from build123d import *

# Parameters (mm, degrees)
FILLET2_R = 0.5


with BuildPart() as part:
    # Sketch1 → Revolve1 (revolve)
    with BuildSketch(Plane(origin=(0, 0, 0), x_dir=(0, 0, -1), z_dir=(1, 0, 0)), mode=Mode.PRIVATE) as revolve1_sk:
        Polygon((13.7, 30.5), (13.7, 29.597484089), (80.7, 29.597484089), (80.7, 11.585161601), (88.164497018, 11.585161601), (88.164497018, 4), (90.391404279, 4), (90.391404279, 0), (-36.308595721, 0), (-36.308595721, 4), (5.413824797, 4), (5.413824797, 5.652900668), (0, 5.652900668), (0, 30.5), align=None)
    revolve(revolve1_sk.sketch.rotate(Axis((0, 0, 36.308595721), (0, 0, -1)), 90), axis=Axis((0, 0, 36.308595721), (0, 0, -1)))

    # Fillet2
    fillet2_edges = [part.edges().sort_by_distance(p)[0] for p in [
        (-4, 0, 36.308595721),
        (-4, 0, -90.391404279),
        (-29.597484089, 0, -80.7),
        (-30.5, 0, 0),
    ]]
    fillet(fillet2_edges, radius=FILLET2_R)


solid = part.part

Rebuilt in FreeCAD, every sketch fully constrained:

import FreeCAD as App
import Part
import Sketcher

V = App.Vector
Q = App.Units.Quantity


def edges_at(feature, points):
    """Names of the edges that pass closest to the given points."""
    edges = feature.Shape.Edges
    near = lambda p: min(range(len(edges)), key=lambda i: edges[i].distToShape(Part.Vertex(*p))[0])
    return sorted({f"Edge{near(p) + 1}" for p in points})

doc = App.newDocument("Part")
body = doc.addObject("PartDesign::Body", "Body")

# Sketch on YZ plane
sketch1 = doc.addObject("Sketcher::SketchObject", "Sketch")
body.addObject(sketch1)
sketch1.AttachmentSupport = (doc.YZ_Plane, [""])
sketch1.MapMode = "FlatFace"
sketch1.addGeometry([
    Part.LineSegment(V(29.6, -13.7, 0), V(30.5, -13.7, 0)),  # 0
    Part.LineSegment(V(30.5, -13.7, 0), V(30.5, 0, 0)),  # 1
    Part.LineSegment(V(30.5, 0, 0), V(5.7, 0, 0)),  # 2
    Part.LineSegment(V(5.7, 0, 0), V(5.7, -5.4, 0)),  # 3
    Part.LineSegment(V(5.7, -5.4, 0), V(4, -5.4, 0)),  # 4
    Part.LineSegment(V(4, -5.4, 0), V(4, 36.3, 0)),  # 5
    Part.LineSegment(V(4, 36.3, 0), V(0, 36.3, 0)),  # 6
    Part.LineSegment(V(0, 36.3, 0), V(0, -90.4, 0)),  # 7
    Part.LineSegment(V(0, -90.4, 0), V(4, -90.4, 0)),  # 8
    Part.LineSegment(V(4, -90.4, 0), V(4, -88.2, 0)),  # 9
    Part.LineSegment(V(4, -88.2, 0), V(11.6, -88.2, 0)),  # 10
    Part.LineSegment(V(11.6, -88.2, 0), V(11.6, -80.7, 0)),  # 11
    Part.LineSegment(V(11.6, -80.7, 0), V(29.6, -80.7, 0)),  # 12
    Part.LineSegment(V(29.6, -80.7, 0), V(29.6, -13.7, 0)),  # 13
], False)
sketch1.addConstraint([
    Sketcher.Constraint("Coincident", 0, 2, 1, 1),
    Sketcher.Constraint("Coincident", 1, 2, 2, 1),
    Sketcher.Constraint("Coincident", 2, 2, 3, 1),
    Sketcher.Constraint("Coincident", 3, 2, 4, 1),
    Sketcher.Constraint("Coincident", 4, 2, 5, 1),
    Sketcher.Constraint("Coincident", 5, 2, 6, 1),
    Sketcher.Constraint("Coincident", 6, 2, 7, 1),
    Sketcher.Constraint("Coincident", 7, 2, 8, 1),
    Sketcher.Constraint("Coincident", 8, 2, 9, 1),
    Sketcher.Constraint("Coincident", 9, 2, 10, 1),
    Sketcher.Constraint("Coincident", 10, 2, 11, 1),
    Sketcher.Constraint("Coincident", 11, 2, 12, 1),
    Sketcher.Constraint("Coincident", 12, 2, 13, 1),
    Sketcher.Constraint("Coincident", 13, 2, 0, 1),
    Sketcher.Constraint("Horizontal", 0),
    Sketcher.Constraint("Vertical", 1),
    Sketcher.Constraint("Horizontal", 2),
    Sketcher.Constraint("Vertical", 3),
    Sketcher.Constraint("Horizontal", 4),
    Sketcher.Constraint("Vertical", 5),
    Sketcher.Constraint("Horizontal", 6),
    Sketcher.Constraint("Vertical", 7),
    Sketcher.Constraint("Horizontal", 8),
    Sketcher.Constraint("Vertical", 9),
    Sketcher.Constraint("Horizontal", 10),
    Sketcher.Constraint("Vertical", 11),
    Sketcher.Constraint("Horizontal", 12),
    Sketcher.Constraint("Vertical", 13),
    Sketcher.Constraint("PointOnObject", 1, 2, -1),
    Sketcher.Constraint("PointOnObject", 6, 2, -2),
    Sketcher.Constraint("Vertical", 5, 2, 8, 2),
    Sketcher.Constraint("DistanceX", 6, 2, 6, 1, Q("4 mm")),
    Sketcher.Constraint("DistanceY", 13, 1, 13, 2, Q("67 mm")),
    Sketcher.Constraint("DistanceY", 1, 1, 1, 2, Q("13.7 mm")),
    Sketcher.Constraint("DistanceY", 7, 2, 7, 1, Q("126.7 mm")),
    Sketcher.Constraint("DistanceX", -1, 1, 0, 2, Q("30.5 mm")),
    Sketcher.Constraint("DistanceX", 2, 2, 2, 1, Q("24.847099 mm")),
    Sketcher.Constraint("DistanceX", 10, 1, 10, 2, Q("7.585162 mm")),
    Sketcher.Constraint("DistanceY", 5, 1, 5, 2, Q("41.722421 mm")),
    Sketcher.Constraint("DistanceX", 0, 1, 0, 2, Q("0.902516 mm")),
    Sketcher.Constraint("DistanceY", 3, 2, 3, 1, Q("5.413825 mm")),
    Sketcher.Constraint("DistanceY", 9, 1, 9, 2, Q("2.226907 mm")),
])
revolution = doc.addObject("PartDesign::Revolution", "Revolution")
body.addObject(revolution)
revolution.Profile = sketch1
revolution.ReferenceAxis = (sketch1, ["V_Axis"])
revolution.Angle = 360
doc.recompute()

fillet = doc.addObject("PartDesign::Fillet", "Fillet")
body.addObject(fillet)
fillet.Base = (revolution, edges_at(revolution, [
    (-4, 0, 36.309),
    (-4, 0, -90.391),
    (-29.597, 0, -80.7),
    (-30.5, 0, 0),
]))
fillet.Radius = 0.5

doc.recompute()
